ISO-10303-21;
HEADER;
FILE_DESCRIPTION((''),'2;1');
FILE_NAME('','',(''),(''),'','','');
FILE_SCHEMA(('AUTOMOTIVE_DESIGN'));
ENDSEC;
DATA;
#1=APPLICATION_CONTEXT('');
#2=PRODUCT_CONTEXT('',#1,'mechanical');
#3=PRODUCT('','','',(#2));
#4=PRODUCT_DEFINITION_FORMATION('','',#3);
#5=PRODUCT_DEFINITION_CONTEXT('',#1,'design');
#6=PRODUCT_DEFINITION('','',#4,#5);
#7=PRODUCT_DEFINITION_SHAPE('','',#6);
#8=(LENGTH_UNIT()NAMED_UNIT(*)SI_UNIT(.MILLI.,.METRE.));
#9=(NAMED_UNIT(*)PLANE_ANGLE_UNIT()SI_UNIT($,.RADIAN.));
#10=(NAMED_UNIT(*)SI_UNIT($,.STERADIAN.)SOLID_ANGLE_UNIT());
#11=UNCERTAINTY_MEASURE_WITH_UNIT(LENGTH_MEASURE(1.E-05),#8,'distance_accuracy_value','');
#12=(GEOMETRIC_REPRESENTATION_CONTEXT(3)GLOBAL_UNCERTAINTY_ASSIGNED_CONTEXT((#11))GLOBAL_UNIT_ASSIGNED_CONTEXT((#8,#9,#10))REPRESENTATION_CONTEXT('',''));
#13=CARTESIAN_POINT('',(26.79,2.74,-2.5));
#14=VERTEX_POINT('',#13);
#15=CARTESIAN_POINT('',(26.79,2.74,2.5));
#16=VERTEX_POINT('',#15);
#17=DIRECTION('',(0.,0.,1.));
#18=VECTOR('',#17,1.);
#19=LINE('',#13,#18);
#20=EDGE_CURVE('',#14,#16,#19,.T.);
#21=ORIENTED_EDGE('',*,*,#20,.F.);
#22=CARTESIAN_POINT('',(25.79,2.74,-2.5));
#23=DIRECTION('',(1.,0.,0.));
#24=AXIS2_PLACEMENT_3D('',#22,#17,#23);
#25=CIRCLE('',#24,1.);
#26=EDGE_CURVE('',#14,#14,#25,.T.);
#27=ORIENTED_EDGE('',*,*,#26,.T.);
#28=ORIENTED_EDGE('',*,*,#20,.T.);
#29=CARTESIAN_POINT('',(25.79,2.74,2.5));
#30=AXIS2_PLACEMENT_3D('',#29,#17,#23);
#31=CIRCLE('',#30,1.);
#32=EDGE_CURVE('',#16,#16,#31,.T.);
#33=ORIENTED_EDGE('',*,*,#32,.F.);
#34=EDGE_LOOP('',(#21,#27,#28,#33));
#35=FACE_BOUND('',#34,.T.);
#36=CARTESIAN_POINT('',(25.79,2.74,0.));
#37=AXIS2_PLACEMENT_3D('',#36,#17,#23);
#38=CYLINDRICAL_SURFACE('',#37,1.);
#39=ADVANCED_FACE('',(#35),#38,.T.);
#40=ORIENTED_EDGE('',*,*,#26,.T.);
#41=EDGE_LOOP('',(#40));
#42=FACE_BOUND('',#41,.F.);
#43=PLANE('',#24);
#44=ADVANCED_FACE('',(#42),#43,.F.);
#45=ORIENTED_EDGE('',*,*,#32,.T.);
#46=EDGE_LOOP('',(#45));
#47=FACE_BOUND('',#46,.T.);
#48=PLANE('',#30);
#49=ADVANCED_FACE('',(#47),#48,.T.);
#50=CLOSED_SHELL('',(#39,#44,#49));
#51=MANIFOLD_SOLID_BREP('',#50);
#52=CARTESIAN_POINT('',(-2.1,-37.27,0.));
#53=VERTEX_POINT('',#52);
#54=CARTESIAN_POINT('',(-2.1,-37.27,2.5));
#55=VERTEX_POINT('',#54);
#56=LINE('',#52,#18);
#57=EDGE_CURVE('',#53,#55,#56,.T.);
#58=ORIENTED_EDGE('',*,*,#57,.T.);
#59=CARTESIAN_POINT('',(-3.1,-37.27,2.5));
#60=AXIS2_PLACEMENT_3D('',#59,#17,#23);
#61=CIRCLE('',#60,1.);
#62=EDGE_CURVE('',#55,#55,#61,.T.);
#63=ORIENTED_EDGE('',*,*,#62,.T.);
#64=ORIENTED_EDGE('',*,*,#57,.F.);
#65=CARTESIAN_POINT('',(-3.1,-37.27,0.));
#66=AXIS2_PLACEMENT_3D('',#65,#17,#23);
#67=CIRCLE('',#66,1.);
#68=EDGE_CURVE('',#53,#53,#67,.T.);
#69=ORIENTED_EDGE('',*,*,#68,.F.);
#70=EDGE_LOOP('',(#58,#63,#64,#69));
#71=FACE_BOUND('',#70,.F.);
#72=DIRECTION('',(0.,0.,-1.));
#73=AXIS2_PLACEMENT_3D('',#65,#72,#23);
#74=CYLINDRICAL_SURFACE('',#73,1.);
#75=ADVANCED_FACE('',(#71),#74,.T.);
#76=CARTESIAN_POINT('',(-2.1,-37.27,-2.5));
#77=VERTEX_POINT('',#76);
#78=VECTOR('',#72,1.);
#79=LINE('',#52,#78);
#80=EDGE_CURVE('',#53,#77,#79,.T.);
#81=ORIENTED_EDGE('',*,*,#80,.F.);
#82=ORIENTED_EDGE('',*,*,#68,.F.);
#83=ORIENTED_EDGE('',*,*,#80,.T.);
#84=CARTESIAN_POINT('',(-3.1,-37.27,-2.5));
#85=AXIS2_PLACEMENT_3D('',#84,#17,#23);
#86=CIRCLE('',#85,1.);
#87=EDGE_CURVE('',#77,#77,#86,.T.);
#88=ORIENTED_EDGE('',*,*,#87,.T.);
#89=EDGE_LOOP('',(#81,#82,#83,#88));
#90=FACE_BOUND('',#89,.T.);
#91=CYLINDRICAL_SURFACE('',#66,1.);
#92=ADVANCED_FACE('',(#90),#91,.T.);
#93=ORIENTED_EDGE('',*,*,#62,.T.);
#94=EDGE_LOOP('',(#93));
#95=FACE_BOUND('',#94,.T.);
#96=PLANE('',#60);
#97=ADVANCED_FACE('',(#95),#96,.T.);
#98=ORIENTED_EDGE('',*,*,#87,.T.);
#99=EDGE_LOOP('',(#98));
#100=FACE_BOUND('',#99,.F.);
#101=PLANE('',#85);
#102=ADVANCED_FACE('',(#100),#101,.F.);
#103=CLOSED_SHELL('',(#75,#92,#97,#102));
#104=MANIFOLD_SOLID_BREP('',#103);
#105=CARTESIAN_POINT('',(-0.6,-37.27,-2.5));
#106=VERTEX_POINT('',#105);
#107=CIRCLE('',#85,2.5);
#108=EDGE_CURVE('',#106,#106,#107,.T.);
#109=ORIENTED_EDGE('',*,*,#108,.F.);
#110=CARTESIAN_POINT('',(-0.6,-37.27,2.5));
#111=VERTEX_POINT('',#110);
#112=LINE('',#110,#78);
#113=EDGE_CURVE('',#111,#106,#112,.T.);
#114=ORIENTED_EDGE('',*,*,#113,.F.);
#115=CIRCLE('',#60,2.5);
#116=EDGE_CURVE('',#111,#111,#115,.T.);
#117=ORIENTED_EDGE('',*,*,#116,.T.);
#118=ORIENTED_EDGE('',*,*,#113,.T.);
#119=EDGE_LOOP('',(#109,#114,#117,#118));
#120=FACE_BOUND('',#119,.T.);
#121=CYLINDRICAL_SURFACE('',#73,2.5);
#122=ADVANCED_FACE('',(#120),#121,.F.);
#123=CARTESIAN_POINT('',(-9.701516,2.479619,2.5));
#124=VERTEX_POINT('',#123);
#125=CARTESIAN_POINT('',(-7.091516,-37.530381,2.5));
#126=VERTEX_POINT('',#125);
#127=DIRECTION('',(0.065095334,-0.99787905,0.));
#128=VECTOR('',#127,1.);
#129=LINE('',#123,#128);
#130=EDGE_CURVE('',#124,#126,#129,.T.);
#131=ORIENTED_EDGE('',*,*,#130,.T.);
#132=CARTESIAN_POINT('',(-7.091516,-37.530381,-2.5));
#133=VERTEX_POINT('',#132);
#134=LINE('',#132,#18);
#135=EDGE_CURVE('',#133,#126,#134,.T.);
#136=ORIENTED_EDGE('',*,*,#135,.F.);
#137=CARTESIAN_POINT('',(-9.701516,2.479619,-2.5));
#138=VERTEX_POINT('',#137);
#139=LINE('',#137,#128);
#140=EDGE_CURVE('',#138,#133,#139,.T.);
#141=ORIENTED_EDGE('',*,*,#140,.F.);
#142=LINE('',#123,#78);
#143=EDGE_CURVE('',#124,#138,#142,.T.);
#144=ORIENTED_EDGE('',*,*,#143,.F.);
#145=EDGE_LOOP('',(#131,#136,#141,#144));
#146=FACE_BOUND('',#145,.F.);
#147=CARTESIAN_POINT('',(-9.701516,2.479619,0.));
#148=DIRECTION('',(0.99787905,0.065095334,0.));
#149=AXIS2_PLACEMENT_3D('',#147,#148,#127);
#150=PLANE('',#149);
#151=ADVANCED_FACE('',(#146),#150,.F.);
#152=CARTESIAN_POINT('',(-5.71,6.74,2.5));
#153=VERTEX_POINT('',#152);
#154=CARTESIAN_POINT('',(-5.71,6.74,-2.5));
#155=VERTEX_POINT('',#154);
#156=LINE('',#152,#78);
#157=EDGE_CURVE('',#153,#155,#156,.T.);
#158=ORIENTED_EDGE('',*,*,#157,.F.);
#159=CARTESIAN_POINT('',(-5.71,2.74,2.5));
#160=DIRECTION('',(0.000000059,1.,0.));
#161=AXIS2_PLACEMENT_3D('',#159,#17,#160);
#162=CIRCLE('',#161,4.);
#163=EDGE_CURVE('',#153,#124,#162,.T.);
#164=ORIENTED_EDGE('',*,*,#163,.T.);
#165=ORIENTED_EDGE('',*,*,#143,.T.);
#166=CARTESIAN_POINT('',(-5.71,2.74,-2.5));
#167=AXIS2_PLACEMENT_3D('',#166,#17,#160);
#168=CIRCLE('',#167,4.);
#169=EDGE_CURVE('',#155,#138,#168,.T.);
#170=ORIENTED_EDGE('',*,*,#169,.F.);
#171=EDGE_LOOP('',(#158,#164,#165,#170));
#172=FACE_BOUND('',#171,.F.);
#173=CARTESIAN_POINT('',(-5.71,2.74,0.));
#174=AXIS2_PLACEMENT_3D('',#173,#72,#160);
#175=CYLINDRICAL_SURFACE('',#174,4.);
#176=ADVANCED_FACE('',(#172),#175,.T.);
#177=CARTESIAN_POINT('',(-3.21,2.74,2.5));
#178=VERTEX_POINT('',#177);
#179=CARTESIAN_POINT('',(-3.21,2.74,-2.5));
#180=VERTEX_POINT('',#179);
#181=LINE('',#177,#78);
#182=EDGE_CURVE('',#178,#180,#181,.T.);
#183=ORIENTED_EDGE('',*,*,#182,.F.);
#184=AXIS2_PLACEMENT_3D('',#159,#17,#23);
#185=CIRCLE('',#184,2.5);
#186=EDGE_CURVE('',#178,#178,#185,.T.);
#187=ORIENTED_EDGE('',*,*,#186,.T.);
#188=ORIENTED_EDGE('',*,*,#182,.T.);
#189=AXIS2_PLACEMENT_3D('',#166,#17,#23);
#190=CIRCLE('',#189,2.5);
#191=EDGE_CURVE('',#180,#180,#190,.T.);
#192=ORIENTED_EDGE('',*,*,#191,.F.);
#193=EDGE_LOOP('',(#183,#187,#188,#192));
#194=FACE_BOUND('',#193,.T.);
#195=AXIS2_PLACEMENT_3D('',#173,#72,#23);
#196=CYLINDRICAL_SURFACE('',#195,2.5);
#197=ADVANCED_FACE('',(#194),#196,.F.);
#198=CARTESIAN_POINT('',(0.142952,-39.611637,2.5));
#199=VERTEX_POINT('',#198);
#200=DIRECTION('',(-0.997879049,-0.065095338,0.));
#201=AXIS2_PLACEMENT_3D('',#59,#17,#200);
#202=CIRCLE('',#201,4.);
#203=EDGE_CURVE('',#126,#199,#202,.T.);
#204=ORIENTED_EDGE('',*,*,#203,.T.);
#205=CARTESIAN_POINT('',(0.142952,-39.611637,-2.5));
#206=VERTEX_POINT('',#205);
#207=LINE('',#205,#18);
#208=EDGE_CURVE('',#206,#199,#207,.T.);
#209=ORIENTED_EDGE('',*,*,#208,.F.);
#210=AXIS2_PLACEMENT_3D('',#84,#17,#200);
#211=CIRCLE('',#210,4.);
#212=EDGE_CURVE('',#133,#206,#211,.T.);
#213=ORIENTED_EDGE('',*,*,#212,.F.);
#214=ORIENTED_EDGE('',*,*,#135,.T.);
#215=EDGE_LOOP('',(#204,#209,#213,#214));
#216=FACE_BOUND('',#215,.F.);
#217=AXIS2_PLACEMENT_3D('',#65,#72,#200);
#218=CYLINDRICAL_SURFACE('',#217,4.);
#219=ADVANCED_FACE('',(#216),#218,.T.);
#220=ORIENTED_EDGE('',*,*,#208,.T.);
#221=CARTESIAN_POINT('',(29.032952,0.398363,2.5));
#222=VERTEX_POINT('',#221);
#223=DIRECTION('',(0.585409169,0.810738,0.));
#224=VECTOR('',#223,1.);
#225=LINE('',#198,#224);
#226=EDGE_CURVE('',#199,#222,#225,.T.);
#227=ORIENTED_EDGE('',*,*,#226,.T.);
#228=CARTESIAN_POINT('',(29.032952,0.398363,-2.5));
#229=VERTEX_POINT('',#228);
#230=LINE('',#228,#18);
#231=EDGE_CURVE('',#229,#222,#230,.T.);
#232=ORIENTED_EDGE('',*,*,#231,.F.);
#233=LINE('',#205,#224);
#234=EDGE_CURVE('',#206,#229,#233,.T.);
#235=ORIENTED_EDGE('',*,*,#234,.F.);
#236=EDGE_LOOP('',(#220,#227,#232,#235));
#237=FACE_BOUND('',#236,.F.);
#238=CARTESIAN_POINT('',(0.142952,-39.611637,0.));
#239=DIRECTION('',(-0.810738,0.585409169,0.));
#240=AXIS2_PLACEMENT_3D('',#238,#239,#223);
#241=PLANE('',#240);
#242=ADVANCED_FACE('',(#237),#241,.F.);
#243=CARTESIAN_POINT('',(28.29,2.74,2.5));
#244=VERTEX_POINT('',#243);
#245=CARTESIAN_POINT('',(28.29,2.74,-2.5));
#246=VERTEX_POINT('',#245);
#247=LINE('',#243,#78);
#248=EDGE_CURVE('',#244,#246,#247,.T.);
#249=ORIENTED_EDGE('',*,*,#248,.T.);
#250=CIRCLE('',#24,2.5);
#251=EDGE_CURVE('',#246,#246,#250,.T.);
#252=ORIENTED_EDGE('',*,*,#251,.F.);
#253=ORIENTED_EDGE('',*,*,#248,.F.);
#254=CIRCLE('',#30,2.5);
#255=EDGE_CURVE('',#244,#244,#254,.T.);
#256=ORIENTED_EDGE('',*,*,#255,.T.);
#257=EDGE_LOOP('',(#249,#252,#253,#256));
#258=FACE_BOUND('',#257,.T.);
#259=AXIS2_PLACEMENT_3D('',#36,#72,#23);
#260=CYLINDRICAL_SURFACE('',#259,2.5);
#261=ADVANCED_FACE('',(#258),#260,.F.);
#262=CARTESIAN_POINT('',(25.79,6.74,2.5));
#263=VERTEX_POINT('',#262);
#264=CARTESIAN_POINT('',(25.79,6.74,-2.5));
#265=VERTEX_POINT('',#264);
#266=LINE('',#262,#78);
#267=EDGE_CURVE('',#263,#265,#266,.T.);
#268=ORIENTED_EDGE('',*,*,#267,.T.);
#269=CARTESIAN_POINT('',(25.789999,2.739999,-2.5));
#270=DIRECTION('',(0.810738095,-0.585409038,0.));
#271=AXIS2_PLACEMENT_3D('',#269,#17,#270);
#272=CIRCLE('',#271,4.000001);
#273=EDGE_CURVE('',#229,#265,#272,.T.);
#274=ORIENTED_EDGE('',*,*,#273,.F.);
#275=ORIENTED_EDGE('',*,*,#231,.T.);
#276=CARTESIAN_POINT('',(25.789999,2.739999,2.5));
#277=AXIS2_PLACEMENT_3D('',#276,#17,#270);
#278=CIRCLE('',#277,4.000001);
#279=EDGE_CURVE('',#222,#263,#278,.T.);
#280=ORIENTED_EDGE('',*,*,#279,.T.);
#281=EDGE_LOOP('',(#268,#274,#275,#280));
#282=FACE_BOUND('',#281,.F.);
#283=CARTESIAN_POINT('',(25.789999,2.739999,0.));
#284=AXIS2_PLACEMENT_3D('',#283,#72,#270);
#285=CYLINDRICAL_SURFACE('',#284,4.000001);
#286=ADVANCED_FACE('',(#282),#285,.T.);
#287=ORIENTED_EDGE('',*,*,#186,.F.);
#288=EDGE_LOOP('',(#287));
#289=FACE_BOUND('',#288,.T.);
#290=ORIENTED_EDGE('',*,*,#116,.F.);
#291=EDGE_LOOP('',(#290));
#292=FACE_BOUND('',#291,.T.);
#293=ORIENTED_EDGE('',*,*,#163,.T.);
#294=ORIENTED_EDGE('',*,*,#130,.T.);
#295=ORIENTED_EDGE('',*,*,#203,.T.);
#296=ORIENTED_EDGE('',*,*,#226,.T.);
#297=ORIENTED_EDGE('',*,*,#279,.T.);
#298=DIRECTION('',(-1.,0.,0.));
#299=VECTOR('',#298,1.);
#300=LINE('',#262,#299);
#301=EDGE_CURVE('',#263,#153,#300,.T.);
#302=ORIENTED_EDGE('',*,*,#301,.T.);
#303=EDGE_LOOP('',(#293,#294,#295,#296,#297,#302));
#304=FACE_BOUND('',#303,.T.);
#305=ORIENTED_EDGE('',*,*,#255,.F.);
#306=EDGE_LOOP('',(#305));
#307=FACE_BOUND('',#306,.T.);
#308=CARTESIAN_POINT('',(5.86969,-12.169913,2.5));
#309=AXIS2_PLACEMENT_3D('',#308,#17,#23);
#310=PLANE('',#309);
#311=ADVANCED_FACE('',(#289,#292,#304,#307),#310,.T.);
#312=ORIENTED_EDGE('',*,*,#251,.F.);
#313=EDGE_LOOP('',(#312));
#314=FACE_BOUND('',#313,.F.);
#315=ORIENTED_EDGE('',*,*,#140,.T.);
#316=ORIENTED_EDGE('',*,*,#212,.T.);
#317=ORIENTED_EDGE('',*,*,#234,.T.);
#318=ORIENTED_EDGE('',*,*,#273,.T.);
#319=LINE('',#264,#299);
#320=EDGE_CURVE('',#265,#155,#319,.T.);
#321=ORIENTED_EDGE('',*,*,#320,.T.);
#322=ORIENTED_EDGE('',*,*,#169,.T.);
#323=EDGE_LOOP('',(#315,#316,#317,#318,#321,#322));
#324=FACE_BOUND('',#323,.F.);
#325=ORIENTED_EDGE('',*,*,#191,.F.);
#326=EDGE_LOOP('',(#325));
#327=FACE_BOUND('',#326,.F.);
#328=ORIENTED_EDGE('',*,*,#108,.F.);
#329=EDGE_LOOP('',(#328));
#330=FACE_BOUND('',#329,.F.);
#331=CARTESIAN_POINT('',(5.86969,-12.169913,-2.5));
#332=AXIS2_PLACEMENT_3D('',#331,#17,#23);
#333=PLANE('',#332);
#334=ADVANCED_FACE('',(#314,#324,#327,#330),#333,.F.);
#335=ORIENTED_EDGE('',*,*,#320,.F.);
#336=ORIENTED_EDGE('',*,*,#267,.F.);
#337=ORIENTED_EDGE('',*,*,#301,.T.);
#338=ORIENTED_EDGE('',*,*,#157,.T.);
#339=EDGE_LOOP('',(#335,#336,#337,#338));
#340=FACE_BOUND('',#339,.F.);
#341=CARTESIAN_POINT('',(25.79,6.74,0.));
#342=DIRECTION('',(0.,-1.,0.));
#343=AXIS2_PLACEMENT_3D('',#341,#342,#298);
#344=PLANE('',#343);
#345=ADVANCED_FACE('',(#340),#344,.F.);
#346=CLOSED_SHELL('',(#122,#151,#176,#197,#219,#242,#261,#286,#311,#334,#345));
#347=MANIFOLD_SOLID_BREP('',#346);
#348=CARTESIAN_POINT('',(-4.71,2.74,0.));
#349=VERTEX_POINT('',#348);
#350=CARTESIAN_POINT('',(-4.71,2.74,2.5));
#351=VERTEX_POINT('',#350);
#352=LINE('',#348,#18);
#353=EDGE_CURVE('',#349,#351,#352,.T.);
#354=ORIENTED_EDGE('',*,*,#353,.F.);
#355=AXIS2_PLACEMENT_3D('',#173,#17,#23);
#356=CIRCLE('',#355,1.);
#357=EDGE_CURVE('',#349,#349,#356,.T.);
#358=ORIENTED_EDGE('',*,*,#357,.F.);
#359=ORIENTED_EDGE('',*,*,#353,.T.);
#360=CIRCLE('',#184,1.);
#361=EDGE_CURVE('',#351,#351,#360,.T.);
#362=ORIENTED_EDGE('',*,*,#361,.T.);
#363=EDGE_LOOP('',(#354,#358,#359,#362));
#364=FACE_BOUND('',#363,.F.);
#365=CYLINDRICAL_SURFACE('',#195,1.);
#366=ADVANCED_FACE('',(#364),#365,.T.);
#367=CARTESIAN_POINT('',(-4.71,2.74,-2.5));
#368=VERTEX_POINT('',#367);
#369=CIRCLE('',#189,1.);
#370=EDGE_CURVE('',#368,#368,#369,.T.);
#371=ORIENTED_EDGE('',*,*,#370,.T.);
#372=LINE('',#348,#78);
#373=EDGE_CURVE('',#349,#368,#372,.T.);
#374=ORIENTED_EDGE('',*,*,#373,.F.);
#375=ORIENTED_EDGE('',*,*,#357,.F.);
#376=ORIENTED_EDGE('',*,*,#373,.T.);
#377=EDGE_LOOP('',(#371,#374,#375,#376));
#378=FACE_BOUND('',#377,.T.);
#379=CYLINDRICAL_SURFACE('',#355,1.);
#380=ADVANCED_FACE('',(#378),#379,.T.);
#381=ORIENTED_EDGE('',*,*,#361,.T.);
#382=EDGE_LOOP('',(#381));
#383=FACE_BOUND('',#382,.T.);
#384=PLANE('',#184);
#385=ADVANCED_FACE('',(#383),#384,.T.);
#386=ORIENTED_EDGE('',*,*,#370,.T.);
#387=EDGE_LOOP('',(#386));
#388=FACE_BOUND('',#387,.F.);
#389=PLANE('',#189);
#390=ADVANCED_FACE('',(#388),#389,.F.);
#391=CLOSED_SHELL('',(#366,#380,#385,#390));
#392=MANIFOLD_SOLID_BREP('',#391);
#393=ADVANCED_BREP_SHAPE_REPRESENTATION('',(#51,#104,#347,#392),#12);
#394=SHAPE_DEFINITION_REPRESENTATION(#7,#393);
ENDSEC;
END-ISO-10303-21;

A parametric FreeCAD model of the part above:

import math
import FreeCAD as App
import Part
import Sketcher

V = App.Vector
Q = App.Units.Quantity

doc = App.newDocument("Part")
body = doc.addObject("PartDesign::Body", "Body")
body.AllowCompound = True

sketch1 = body.newObject("Sketcher::SketchObject", "Sketch")
sketch1.AttachmentSupport = (doc.getObject("XY_Plane"), [""])
sketch1.MapMode = "FlatFace"
sketch1.addGeometry([
    Part.LineSegment(V(-9.7, 2.5, 0), V(-7.1, -37.5, 0)),
    Part.ArcOfCircle(Part.Circle(V(-3.1, -37.3, 0), V(0, 0, 1), 4), math.radians(-176), math.radians(-36)),
    Part.LineSegment(V(0.1, -39.6, 0), V(29, 0.4, 0)),
    Part.ArcOfCircle(Part.Circle(V(25.8, 2.7, 0), V(0, 0, 1), 4), math.radians(-36), math.radians(90)),
    Part.LineSegment(V(25.8, 6.7, 0), V(-5.7, 6.7, 0)),
    Part.ArcOfCircle(Part.Circle(V(-5.7, 2.7, 0), V(0, 0, 1), 4), math.radians(90), math.radians(184)),
    Part.Circle(V(-3.1, -37.3, 0), V(0, 0, 1), 2.5),
    Part.Circle(V(-5.7, 2.7, 0), V(0, 0, 1), 2.5),
    Part.Circle(V(25.8, 2.7, 0), V(0, 0, 1), 2.5),
    Part.Circle(V(-5.7, 2.7, 0), V(0, 0, 1), 1),
    Part.Circle(V(-3.1, -37.3, 0), V(0, 0, 1), 1),
    Part.Circle(V(25.8, 2.7, 0), V(0, 0, 1), 1),
], False)
sketch1.addConstraint([
    Sketcher.Constraint("Tangent", 0, 2, 1, 1),
    Sketcher.Constraint("Tangent", 1, 2, 2, 1),
    Sketcher.Constraint("Tangent", 2, 2, 3, 1),
    Sketcher.Constraint("Tangent", 3, 2, 4, 1),
    Sketcher.Constraint("Tangent", 4, 2, 5, 1),
    Sketcher.Constraint("Tangent", 5, 2, 0, 1),
    Sketcher.Constraint("Horizontal", 4),
    Sketcher.Constraint("Coincident", 6, 3, 1, 3),
    Sketcher.Constraint("Coincident", 7, 3, 5, 3),
    Sketcher.Constraint("Coincident", 8, 3, 3, 3),
    Sketcher.Constraint("Coincident", 9, 3, 5, 3),
    Sketcher.Constraint("Coincident", 10, 3, 1, 3),
    Sketcher.Constraint("Coincident", 11, 3, 3, 3),
    Sketcher.Constraint("Equal", 1, 3),
    Sketcher.Constraint("Equal", 3, 5),
    Sketcher.Constraint("Equal", 6, 7),
    Sketcher.Constraint("Equal", 7, 8),
    Sketcher.Constraint("Equal", 9, 10),
    Sketcher.Constraint("Equal", 10, 11),
    Sketcher.Constraint("Diameter", 6, Q("5 mm")),
    Sketcher.Constraint("Diameter", 9, Q("2 mm")),
    Sketcher.Constraint("Radius", 1, Q("4 mm")),
    Sketcher.Constraint("DistanceX", 4, 2, 4, 1, Q("31.5 mm")),
    Sketcher.Constraint("DistanceX", 1, 3, -1, 1, Q("3.1 mm")),
    Sketcher.Constraint("DistanceY", 1, 3, -1, 1, Q("37.27 mm")),
    Sketcher.Constraint("DistanceX", -1, 1, 3, 3, Q("25.789999 mm")),
    Sketcher.Constraint("DistanceY", -1, 1, 3, 3, Q("2.739999 mm")),
])
pad1 = body.newObject("PartDesign::Pad", "Pad")
pad1.Profile = sketch1
pad1.Length = 5
pad1.Midplane = True

doc.recompute()
